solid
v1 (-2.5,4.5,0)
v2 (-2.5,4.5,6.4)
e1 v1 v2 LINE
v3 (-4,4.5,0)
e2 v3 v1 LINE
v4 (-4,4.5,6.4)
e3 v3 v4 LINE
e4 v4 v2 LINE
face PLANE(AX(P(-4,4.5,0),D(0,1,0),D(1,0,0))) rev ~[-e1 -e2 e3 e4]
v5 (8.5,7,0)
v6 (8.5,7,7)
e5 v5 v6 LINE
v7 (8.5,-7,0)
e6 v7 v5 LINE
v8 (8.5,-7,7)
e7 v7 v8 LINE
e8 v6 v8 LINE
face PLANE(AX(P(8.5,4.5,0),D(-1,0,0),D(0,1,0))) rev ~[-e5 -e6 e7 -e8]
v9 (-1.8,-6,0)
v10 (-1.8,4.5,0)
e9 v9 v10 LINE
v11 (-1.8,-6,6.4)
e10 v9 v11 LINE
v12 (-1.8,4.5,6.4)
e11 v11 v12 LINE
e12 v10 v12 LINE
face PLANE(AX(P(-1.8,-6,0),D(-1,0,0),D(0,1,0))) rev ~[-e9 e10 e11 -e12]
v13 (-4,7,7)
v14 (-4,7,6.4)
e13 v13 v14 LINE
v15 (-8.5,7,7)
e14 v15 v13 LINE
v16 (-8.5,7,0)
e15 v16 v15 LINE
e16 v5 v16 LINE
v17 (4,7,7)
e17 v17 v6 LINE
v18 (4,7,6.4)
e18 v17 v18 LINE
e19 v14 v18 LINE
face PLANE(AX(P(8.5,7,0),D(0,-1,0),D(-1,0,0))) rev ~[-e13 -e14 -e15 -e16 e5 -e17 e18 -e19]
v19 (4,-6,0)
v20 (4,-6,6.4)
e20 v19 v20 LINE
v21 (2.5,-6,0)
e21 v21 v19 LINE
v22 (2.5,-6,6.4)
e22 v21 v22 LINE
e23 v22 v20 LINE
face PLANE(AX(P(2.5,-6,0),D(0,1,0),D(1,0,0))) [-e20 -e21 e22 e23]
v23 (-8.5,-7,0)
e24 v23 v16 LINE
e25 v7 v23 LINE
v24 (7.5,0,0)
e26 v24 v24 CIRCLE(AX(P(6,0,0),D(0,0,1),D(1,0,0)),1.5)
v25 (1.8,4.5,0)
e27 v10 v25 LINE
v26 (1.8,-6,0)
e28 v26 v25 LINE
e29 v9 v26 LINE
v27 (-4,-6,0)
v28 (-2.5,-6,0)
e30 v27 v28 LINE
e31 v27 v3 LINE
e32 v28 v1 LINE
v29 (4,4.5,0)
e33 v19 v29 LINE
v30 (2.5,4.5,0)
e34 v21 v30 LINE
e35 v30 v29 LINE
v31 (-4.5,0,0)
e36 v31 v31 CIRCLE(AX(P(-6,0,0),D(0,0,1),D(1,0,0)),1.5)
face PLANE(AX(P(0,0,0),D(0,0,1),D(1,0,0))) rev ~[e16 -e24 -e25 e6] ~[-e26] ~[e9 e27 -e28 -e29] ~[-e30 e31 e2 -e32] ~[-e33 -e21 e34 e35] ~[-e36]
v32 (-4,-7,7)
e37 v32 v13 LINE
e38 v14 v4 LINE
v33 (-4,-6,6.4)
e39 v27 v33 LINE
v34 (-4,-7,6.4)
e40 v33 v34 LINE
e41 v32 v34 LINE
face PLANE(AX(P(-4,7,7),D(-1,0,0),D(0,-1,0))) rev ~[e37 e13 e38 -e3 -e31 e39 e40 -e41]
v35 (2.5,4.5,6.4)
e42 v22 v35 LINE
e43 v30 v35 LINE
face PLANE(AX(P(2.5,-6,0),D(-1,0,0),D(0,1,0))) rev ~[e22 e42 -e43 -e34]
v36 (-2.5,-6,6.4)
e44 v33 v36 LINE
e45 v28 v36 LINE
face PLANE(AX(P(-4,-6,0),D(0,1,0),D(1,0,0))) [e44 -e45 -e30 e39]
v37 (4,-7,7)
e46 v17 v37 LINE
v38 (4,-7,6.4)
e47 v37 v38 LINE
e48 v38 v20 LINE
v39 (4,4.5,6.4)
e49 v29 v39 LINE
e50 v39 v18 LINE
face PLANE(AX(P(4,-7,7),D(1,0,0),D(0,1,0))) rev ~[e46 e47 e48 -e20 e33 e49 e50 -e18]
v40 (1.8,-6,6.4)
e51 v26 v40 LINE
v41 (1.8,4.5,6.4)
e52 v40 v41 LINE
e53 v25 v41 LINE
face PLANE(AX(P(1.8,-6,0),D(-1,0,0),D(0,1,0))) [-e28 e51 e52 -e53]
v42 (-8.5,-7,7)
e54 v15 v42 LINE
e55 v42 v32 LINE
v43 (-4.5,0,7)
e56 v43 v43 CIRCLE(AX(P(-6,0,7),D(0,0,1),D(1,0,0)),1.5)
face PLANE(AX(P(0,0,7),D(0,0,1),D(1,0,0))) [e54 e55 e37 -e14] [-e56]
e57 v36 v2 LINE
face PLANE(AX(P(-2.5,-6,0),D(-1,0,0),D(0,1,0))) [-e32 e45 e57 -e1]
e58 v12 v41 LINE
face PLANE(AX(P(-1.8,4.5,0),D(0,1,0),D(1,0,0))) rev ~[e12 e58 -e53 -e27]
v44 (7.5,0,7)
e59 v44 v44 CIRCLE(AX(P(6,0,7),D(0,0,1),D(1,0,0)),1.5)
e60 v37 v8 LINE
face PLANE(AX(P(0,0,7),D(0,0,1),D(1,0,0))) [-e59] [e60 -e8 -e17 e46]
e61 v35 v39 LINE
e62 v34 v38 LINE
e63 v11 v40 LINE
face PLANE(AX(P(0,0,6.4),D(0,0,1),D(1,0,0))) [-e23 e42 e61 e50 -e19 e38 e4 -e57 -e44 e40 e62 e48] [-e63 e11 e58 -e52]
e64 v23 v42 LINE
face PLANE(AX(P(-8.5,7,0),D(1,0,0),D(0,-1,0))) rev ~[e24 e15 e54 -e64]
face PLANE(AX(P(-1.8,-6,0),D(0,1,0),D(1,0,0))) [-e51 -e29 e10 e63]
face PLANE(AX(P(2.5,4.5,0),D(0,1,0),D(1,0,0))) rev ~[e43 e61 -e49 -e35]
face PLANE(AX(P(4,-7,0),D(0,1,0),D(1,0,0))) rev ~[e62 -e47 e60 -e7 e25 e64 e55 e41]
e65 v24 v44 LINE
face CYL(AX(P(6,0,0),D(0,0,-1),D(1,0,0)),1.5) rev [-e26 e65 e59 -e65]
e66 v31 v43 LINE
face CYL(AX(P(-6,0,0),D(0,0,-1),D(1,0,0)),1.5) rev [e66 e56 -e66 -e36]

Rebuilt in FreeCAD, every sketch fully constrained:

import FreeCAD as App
import Part
import Sketcher
from FreeCAD import Vector


def add_polygon(sketch, points):
    """Adds a closed chain of lines whose ends are joined by coincident constraints."""
    first, n = sketch.GeometryCount, len(points)
    for a, b in zip(points, points[1:] + points[:1]):
        sketch.addGeometry(Part.LineSegment(App.Vector(*a, 0), App.Vector(*b, 0)), False)
    for i in range(n):
        sketch.addConstraint(Sketcher.Constraint("Coincident", first + i, 2, first + (i + 1) % n, 1))

doc = App.newDocument("Part")
body = doc.addObject("PartDesign::Body", "Body")

sketch1 = doc.addObject("Sketcher::SketchObject", "Sketch")
body.addObject(sketch1)
sketch1.AttachmentSupport = (doc.XY_Plane, [""])
sketch1.MapMode = "FlatFace"
add_polygon(sketch1, [(8.5, 7), (-8.5, 7), (-8.5, -7), (8.5, -7)])
add_polygon(sketch1, [(4, 4.5), (4, -6), (2.5, -6), (2.5, 4.5)])
sketch1.addGeometry(Part.Circle(Vector(6, 0, 0), Vector(0, 0, 1), 1.5), False)
add_polygon(sketch1, [(-1.8, 4.5), (1.8, 4.5), (1.8, -6), (-1.8, -6)])
add_polygon(sketch1, [(-4, 4.5), (-2.5, 4.5), (-2.5, -6), (-4, -6)])
sketch1.addGeometry(Part.Circle(Vector(-6, 0, 0), Vector(0, 0, 1), 1.5), False)
sketch1.addConstraint([
    Sketcher.Constraint("Horizontal", 0),
    Sketcher.Constraint("Vertical", 1),
    Sketcher.Constraint("Horizontal", 2),
    Sketcher.Constraint("Vertical", 3),
    Sketcher.Constraint("Vertical", 4),
    Sketcher.Constraint("Horizontal", 5),
    Sketcher.Constraint("Vertical", 6),
    Sketcher.Constraint("Horizontal", 7),
    Sketcher.Constraint("Horizontal", 9),
    Sketcher.Constraint("Vertical", 10),
    Sketcher.Constraint("Horizontal", 11),
    Sketcher.Constraint("Vertical", 12),
    Sketcher.Constraint("Horizontal", 13),
    Sketcher.Constraint("Vertical", 14),
    Sketcher.Constraint("Horizontal", 15),
    Sketcher.Constraint("Vertical", 16),
    Sketcher.Constraint("Equal", 8, 17),
    Sketcher.Constraint("Symmetric", 8, 3, 17, 3, -1, 1),
    Sketcher.Constraint("Symmetric", 0, 2, 2, 2, -1, 1),
    Sketcher.Constraint("Symmetric", 6, 2, 13, 2, -2),
    Sketcher.Constraint("Symmetric", 4, 2, 15, 2, -2),
    Sketcher.Constraint("PointOnObject", 8, 3, -1),
    Sketcher.Constraint("Horizontal", 7, 2, 9, 2),
    Sketcher.Constraint("Horizontal", 5, 2, 10, 2),
    Sketcher.Constraint("Diameter", 8, 3.0),
    Sketcher.Constraint("DistanceX", 0, 2, 0, 1, 17.0),
    Sketcher.Constraint("DistanceY", 1, 2, 1, 1, 14.0),
    Sketcher.Constraint("DistanceX", 5, 2, 5, 1, 1.5),
    Sketcher.Constraint("DistanceY", 2, 2, 4, 2, 1.0),
    Sketcher.Constraint("DistanceX", -1, 1, 5, 2, 2.5),
    Sketcher.Constraint("DistanceY", -1, 1, 6, 2, 4.5),
    Sketcher.Constraint("DistanceX", 0, 2, 17, 3, 2.5),
    Sketcher.Constraint("DistanceX", 9, 2, 6, 2, 0.7),
    Sketcher.Constraint("DistanceX", 13, 2, 12, 2, 0.7),
])
pad1 = doc.addObject("PartDesign::Pad", "Pad")
body.addObject(pad1)
pad1.Profile = sketch1
pad1.Length = 7

sketch2 = doc.addObject("Sketcher::SketchObject", "Sketch001")
body.addObject(sketch2)
sketch2.AttachmentSupport = (doc.XY_Plane, [""])
sketch2.MapMode = "FlatFace"
sketch2.AttachmentOffset = App.Placement(Vector(0, 0, 7), App.Rotation())
add_polygon(sketch2, [(4, -7), (4, 7), (-4, 7), (-4, -7)])
sketch2.addConstraint([
    Sketcher.Constraint("Vertical", 0),
    Sketcher.Constraint("Horizontal", 1),
    Sketcher.Constraint("Vertical", 2),
    Sketcher.Constraint("Horizontal", 3),
    Sketcher.Constraint("Symmetric", 0, 2, 2, 2, -1, 1),
    Sketcher.Constraint("DistanceX", 1, 2, 1, 1, 8.0),
    Sketcher.Constraint("DistanceY", 0, 1, 0, 2, 14.0),
])
pocket1 = doc.addObject("PartDesign::Pocket", "Pocket")
body.addObject(pocket1)
pocket1.Profile = sketch2
pocket1.Length = 0.6

doc.recompute()
